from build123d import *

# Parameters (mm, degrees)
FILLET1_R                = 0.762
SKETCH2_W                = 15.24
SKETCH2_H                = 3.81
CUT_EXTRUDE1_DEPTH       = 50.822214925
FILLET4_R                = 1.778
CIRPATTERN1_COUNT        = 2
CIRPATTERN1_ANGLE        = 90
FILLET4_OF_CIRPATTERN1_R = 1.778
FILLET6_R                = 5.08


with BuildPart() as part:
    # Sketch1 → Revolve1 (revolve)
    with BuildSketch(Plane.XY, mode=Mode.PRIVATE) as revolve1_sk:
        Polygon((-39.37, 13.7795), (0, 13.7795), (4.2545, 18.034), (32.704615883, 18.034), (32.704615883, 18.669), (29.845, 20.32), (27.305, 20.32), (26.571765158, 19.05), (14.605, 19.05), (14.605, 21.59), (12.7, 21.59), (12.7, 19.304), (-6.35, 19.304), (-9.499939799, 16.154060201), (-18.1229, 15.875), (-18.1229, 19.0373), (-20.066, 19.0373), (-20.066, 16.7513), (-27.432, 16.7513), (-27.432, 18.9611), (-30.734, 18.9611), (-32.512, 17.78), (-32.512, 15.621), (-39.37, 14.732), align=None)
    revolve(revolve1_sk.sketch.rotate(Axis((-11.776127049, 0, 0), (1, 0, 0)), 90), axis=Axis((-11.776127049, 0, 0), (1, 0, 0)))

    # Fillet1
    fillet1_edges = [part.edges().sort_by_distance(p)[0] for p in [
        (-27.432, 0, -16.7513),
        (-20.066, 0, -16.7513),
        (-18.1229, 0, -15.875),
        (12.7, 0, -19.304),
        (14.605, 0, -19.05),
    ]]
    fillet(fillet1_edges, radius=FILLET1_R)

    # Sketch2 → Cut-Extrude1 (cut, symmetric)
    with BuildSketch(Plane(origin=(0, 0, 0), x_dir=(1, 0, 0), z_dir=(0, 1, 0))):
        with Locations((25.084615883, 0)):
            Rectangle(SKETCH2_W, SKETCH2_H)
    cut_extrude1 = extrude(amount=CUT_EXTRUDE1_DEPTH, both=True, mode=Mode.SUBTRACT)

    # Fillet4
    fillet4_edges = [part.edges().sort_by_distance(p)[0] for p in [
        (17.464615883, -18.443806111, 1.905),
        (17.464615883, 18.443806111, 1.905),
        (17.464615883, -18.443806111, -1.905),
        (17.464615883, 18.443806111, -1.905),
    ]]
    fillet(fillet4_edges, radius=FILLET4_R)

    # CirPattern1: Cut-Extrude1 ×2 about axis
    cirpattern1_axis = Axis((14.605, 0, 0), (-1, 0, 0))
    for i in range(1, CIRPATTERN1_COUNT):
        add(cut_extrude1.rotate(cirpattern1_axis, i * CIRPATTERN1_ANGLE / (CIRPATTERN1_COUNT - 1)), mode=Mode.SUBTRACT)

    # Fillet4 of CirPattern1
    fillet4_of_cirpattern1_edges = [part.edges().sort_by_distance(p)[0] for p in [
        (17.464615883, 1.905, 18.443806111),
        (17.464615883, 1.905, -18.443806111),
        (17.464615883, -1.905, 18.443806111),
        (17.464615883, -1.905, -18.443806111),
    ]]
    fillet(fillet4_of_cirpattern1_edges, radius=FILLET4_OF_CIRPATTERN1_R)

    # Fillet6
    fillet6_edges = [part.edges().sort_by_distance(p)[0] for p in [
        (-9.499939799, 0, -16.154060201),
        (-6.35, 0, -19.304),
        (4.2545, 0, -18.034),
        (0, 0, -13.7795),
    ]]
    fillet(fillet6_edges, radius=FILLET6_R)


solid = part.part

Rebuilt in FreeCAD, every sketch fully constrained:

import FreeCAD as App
import Part
import Sketcher
Q = App.Units.Quantity


def edges_at(feature, points):
    """Names of the edges that pass closest to the given points."""
    edges = feature.Shape.Edges
    near = lambda p: min(range(len(edges)), key=lambda i: edges[i].distToShape(Part.Vertex(*p))[0])
    return sorted({f"Edge{near(p) + 1}" for p in points})

doc = App.newDocument("Part")
body = doc.addObject("PartDesign::Body", "Body")

sketch1 = body.newObject("Sketcher::SketchObject", "Sketch")
sketch1.AttachmentSupport = (doc.getObject("XY_Plane"), [""])
sketch1.MapMode = "FlatFace"
sketch1.addGeometry([
    Part.LineSegment(App.Vector(-39.37, 13.7795, 0), App.Vector(0, 13.7795, 0)),
    Part.LineSegment(App.Vector(0, 13.7795, 0), App.Vector(4.2545, 18.034, 0)),
    Part.LineSegment(App.Vector(4.2545, 18.034, 0), App.Vector(32.704616, 18.034, 0)),
    Part.LineSegment(App.Vector(32.704616, 18.034, 0), App.Vector(32.704616, 18.669, 0)),
    Part.LineSegment(App.Vector(32.704616, 18.669, 0), App.Vector(29.845, 20.32, 0)),
    Part.LineSegment(App.Vector(29.845, 20.32, 0), App.Vector(27.305, 20.32, 0)),
    Part.LineSegment(App.Vector(27.305, 20.32, 0), App.Vector(26.571765, 19.05, 0)),
    Part.LineSegment(App.Vector(26.571765, 19.05, 0), App.Vector(14.605, 19.05, 0)),
    Part.LineSegment(App.Vector(14.605, 19.05, 0), App.Vector(14.605, 21.59, 0)),
    Part.LineSegment(App.Vector(14.605, 21.59, 0), App.Vector(12.7, 21.59, 0)),
    Part.LineSegment(App.Vector(12.7, 21.59, 0), App.Vector(12.7, 19.304, 0)),
    Part.LineSegment(App.Vector(12.7, 19.304, 0), App.Vector(-6.35, 19.304, 0)),
    Part.LineSegment(App.Vector(-6.35, 19.304, 0), App.Vector(-9.49994, 16.15406, 0)),
    Part.LineSegment(App.Vector(-9.49994, 16.15406, 0), App.Vector(-18.1229, 15.875, 0)),
    Part.LineSegment(App.Vector(-18.1229, 15.875, 0), App.Vector(-18.1229, 19.0373, 0)),
    Part.LineSegment(App.Vector(-18.1229, 19.0373, 0), App.Vector(-20.066, 19.0373, 0)),
    Part.LineSegment(App.Vector(-20.066, 19.0373, 0), App.Vector(-20.066, 16.7513, 0)),
    Part.LineSegment(App.Vector(-20.066, 16.7513, 0), App.Vector(-27.432, 16.7513, 0)),
    Part.LineSegment(App.Vector(-27.432, 16.7513, 0), App.Vector(-27.432, 18.9611, 0)),
    Part.LineSegment(App.Vector(-27.432, 18.9611, 0), App.Vector(-30.734, 18.9611, 0)),
    Part.LineSegment(App.Vector(-30.734, 18.9611, 0), App.Vector(-32.512, 17.78, 0)),
    Part.LineSegment(App.Vector(-32.512, 17.78, 0), App.Vector(-32.512, 15.621, 0)),
    Part.LineSegment(App.Vector(-32.512, 15.621, 0), App.Vector(-39.37, 14.732, 0)),
    Part.LineSegment(App.Vector(-39.37, 14.732, 0), App.Vector(-39.37, 13.7795, 0)),
], False)
sketch1.addConstraint([
    Sketcher.Constraint("Coincident", 0, 2, 1, 1),
    Sketcher.Constraint("Coincident", 1, 2, 2, 1),
    Sketcher.Constraint("Coincident", 2, 2, 3, 1),
    Sketcher.Constraint("Coincident", 3, 2, 4, 1),
    Sketcher.Constraint("Coincident", 4, 2, 5, 1),
    Sketcher.Constraint("Coincident", 5, 2, 6, 1),
    Sketcher.Constraint("Coincident", 6, 2, 7, 1),
    Sketcher.Constraint("Coincident", 7, 2, 8, 1),
    Sketcher.Constraint("Coincident", 8, 2, 9, 1),
    Sketcher.Constraint("Coincident", 9, 2, 10, 1),
    Sketcher.Constraint("Coincident", 10, 2, 11, 1),
    Sketcher.Constraint("Coincident", 11, 2, 12, 1),
    Sketcher.Constraint("Coincident", 12, 2, 13, 1),
    Sketcher.Constraint("Coincident", 13, 2, 14, 1),
    Sketcher.Constraint("Coincident", 14, 2, 15, 1),
    Sketcher.Constraint("Coincident", 15, 2, 16, 1),
    Sketcher.Constraint("Coincident", 16, 2, 17, 1),
    Sketcher.Constraint("Coincident", 17, 2, 18, 1),
    Sketcher.Constraint("Coincident", 18, 2, 19, 1),
    Sketcher.Constraint("Coincident", 19, 2, 20, 1),
    Sketcher.Constraint("Coincident", 20, 2, 21, 1),
    Sketcher.Constraint("Coincident", 21, 2, 22, 1),
    Sketcher.Constraint("Coincident", 22, 2, 23, 1),
    Sketcher.Constraint("Coincident", 23, 2, 0, 1),
    Sketcher.Constraint("Horizontal", 0),
    Sketcher.Constraint("Horizontal", 2),
    Sketcher.Constraint("Vertical", 3),
    Sketcher.Constraint("Horizontal", 5),
    Sketcher.Constraint("Horizontal", 7),
    Sketcher.Constraint("Vertical", 8),
    Sketcher.Constraint("Horizontal", 9),
    Sketcher.Constraint("Vertical", 10),
    Sketcher.Constraint("Horizontal", 11),
    Sketcher.Constraint("Vertical", 14),
    Sketcher.Constraint("Horizontal", 15),
    Sketcher.Constraint("Vertical", 16),
    Sketcher.Constraint("Horizontal", 17),
    Sketcher.Constraint("Vertical", 18),
    Sketcher.Constraint("Horizontal", 19),
    Sketcher.Constraint("Vertical", 21),
    Sketcher.Constraint("Vertical", 23),
    Sketcher.Constraint("PointOnObject", 0, 2, -2),
    Sketcher.Constraint("Perpendicular", 4, 6),
    Sketcher.Constraint("Parallel", 1, 12),
    Sketcher.Constraint("Equal", 5, 8),
    Sketcher.Constraint("Equal", 10, 16),
    Sketcher.Constraint("DistanceX", 5, 2, 5, 1, Q("0.1 in")),
    Sketcher.Constraint("Angle", 1, Q("45 deg")),
    Sketcher.Constraint("Angle", 4, Q("150 deg")),
    Sketcher.Constraint("DistanceX", 0, 1, 0, 2, Q("1.55 in")),
    Sketcher.Constraint("DistanceX", 11, 2, 11, 1, Q("0.75 in")),
    Sketcher.Constraint("DistanceX", 17, 2, 17, 1, Q("0.29 in")),
    Sketcher.Constraint("DistanceX", 19, 2, 19, 1, Q("0.13 in")),
    Sketcher.Constraint("DistanceY", 10, 2, 10, 1, Q("0.09 in")),
    Sketcher.Constraint("DistanceY", -1, 1, 4, 2, Q("0.8 in")),
    Sketcher.Constraint("DistanceX", -1, 1, 9, 2, Q("0.5 in")),
    Sketcher.Constraint("DistanceY", -1, 1, 20, 2, Q("0.7 in")),
    Sketcher.Constraint("DistanceX", 7, 2, 5, 2, Q("0.5 in")),
    Sketcher.Constraint("DistanceX", 20, 2, 17, 2, Q("0.2 in")),
    Sketcher.Constraint("Distance", 4, Q("0.13 in")),
    Sketcher.Constraint("DistanceX", 9, 2, 9, 1, Q("0.075 in")),
    Sketcher.Constraint("DistanceY", 3, 1, 3, 2, Q("0.025 in")),
    Sketcher.Constraint("DistanceY", 18, 1, 18, 2, Q("0.087 in")),
    Sketcher.Constraint("DistanceY", 21, 2, 21, 1, Q("0.085 in")),
    Sketcher.Constraint("DistanceY", -1, 1, 6, 2, Q("0.75 in")),
    Sketcher.Constraint("DistanceX", 15, 2, -1, 1, Q("0.79 in")),
    Sketcher.Constraint("DistanceY", -1, 1, 22, 2, Q("0.58 in")),
    Sketcher.Constraint("DistanceX", 15, 2, 15, 1, Q("0.0765 in")),
    Sketcher.Constraint("DistanceY", 14, 1, 14, 2, Q("0.1245 in")),
    Sketcher.Constraint("DistanceY", 23, 2, 23, 1, Q("0.0375 in")),
    Sketcher.Constraint("DistanceY", -1, 1, 13, 2, Q("0.625 in")),
    Sketcher.Constraint("DistanceX", 12, 2, -1, 1, 9.49994),
])
revolution = body.newObject("PartDesign::Revolution", "Revolution")
revolution.Profile = sketch1
revolution.ReferenceAxis = (sketch1, ["H_Axis"])
revolution.Angle = 360
doc.recompute()

fillet = body.newObject("PartDesign::Fillet", "Fillet")
fillet.Base = (revolution, edges_at(revolution, [
    (-27.432, 0, -16.751),
    (-20.066, 0, -16.751),
    (-18.123, 0, -15.875),
    (12.7, 0, -19.304),
    (14.605, 0, -19.05),
]))
fillet.Radius = Q("0.03 in")

sketch2 = body.newObject("Sketcher::SketchObject", "Sketch001")
sketch2.AttachmentSupport = (doc.getObject("XZ_Plane"), [""])
sketch2.MapMode = "FlatFace"
sketch2.addGeometry([
    Part.LineSegment(App.Vector(17.464616, -1.905, 0), App.Vector(17.464616, 1.905, 0)),
    Part.LineSegment(App.Vector(17.464616, 1.905, 0), App.Vector(32.704616, 1.905, 0)),
    Part.LineSegment(App.Vector(32.704616, 1.905, 0), App.Vector(32.704616, -1.905, 0)),
    Part.LineSegment(App.Vector(32.704616, -1.905, 0), App.Vector(17.464616, -1.905, 0)),
], False)
sketch2.addConstraint([
    Sketcher.Constraint("Coincident", 0, 2, 1, 1),
    Sketcher.Constraint("Coincident", 1, 2, 2, 1),
    Sketcher.Constraint("Coincident", 2, 2, 3, 1),
    Sketcher.Constraint("Coincident", 3, 2, 0, 1),
    Sketcher.Constraint("Vertical", 0),
    Sketcher.Constraint("Horizontal", 1),
    Sketcher.Constraint("Vertical", 2),
    Sketcher.Constraint("Horizontal", 3),
    Sketcher.Constraint("DistanceX", 1, 1, 1, 2, Q("0.6 in")),
    Sketcher.Constraint("DistanceY", 0, 1, 0, 2, Q("0.15 in")),
    Sketcher.Constraint("DistanceY", -1, 1, 0, 2, Q("0.075 in")),
    Sketcher.Constraint("DistanceX", -1, 1, 0, 2, 17.464616),
])
pocket1 = body.newObject("PartDesign::Pocket", "Pocket")
pocket1.Profile = sketch2
pocket1.Length = 101.64443
pocket1.Midplane = True
doc.recompute()

fillet2 = body.newObject("PartDesign::Fillet", "Fillet001")
fillet2.Base = (pocket1, edges_at(pocket1, [
    (17.465, -18.444, 1.905),
    (17.465, 18.444, 1.905),
    (17.465, -18.444, -1.905),
    (17.465, 18.444, -1.905),
]))
fillet2.Radius = Q("0.07 in")
doc.recompute()

polarpattern = body.newObject("PartDesign::PolarPattern", "PolarPattern")
polarpattern.Originals = [pocket1]
polarpattern.Axis = (doc.getObject("X_Axis"), [""])
polarpattern.Angle = 90
polarpattern.Occurrences = 2
polarpattern.Reversed = True
body.Tip = polarpattern
doc.recompute()

fillet3 = body.newObject("PartDesign::Fillet", "Fillet002")
fillet3.Base = (polarpattern, edges_at(polarpattern, [
    (17.465, 1.905, 18.444),
    (17.465, 1.905, -18.444),
    (17.465, -1.905, 18.444),
    (17.465, -1.905, -18.444),
]))
fillet3.Radius = Q("0.07 in")
doc.recompute()

fillet4 = body.newObject("PartDesign::Fillet", "Fillet003")
fillet4.Base = (fillet3, edges_at(fillet3, [
    (-9.5, 0, -16.154),
    (-6.35, 0, -19.304),
    (4.255, 0, -18.034),
    (0, 0, -13.78),
]))
fillet4.Radius = Q("0.2 in")

doc.recompute()
